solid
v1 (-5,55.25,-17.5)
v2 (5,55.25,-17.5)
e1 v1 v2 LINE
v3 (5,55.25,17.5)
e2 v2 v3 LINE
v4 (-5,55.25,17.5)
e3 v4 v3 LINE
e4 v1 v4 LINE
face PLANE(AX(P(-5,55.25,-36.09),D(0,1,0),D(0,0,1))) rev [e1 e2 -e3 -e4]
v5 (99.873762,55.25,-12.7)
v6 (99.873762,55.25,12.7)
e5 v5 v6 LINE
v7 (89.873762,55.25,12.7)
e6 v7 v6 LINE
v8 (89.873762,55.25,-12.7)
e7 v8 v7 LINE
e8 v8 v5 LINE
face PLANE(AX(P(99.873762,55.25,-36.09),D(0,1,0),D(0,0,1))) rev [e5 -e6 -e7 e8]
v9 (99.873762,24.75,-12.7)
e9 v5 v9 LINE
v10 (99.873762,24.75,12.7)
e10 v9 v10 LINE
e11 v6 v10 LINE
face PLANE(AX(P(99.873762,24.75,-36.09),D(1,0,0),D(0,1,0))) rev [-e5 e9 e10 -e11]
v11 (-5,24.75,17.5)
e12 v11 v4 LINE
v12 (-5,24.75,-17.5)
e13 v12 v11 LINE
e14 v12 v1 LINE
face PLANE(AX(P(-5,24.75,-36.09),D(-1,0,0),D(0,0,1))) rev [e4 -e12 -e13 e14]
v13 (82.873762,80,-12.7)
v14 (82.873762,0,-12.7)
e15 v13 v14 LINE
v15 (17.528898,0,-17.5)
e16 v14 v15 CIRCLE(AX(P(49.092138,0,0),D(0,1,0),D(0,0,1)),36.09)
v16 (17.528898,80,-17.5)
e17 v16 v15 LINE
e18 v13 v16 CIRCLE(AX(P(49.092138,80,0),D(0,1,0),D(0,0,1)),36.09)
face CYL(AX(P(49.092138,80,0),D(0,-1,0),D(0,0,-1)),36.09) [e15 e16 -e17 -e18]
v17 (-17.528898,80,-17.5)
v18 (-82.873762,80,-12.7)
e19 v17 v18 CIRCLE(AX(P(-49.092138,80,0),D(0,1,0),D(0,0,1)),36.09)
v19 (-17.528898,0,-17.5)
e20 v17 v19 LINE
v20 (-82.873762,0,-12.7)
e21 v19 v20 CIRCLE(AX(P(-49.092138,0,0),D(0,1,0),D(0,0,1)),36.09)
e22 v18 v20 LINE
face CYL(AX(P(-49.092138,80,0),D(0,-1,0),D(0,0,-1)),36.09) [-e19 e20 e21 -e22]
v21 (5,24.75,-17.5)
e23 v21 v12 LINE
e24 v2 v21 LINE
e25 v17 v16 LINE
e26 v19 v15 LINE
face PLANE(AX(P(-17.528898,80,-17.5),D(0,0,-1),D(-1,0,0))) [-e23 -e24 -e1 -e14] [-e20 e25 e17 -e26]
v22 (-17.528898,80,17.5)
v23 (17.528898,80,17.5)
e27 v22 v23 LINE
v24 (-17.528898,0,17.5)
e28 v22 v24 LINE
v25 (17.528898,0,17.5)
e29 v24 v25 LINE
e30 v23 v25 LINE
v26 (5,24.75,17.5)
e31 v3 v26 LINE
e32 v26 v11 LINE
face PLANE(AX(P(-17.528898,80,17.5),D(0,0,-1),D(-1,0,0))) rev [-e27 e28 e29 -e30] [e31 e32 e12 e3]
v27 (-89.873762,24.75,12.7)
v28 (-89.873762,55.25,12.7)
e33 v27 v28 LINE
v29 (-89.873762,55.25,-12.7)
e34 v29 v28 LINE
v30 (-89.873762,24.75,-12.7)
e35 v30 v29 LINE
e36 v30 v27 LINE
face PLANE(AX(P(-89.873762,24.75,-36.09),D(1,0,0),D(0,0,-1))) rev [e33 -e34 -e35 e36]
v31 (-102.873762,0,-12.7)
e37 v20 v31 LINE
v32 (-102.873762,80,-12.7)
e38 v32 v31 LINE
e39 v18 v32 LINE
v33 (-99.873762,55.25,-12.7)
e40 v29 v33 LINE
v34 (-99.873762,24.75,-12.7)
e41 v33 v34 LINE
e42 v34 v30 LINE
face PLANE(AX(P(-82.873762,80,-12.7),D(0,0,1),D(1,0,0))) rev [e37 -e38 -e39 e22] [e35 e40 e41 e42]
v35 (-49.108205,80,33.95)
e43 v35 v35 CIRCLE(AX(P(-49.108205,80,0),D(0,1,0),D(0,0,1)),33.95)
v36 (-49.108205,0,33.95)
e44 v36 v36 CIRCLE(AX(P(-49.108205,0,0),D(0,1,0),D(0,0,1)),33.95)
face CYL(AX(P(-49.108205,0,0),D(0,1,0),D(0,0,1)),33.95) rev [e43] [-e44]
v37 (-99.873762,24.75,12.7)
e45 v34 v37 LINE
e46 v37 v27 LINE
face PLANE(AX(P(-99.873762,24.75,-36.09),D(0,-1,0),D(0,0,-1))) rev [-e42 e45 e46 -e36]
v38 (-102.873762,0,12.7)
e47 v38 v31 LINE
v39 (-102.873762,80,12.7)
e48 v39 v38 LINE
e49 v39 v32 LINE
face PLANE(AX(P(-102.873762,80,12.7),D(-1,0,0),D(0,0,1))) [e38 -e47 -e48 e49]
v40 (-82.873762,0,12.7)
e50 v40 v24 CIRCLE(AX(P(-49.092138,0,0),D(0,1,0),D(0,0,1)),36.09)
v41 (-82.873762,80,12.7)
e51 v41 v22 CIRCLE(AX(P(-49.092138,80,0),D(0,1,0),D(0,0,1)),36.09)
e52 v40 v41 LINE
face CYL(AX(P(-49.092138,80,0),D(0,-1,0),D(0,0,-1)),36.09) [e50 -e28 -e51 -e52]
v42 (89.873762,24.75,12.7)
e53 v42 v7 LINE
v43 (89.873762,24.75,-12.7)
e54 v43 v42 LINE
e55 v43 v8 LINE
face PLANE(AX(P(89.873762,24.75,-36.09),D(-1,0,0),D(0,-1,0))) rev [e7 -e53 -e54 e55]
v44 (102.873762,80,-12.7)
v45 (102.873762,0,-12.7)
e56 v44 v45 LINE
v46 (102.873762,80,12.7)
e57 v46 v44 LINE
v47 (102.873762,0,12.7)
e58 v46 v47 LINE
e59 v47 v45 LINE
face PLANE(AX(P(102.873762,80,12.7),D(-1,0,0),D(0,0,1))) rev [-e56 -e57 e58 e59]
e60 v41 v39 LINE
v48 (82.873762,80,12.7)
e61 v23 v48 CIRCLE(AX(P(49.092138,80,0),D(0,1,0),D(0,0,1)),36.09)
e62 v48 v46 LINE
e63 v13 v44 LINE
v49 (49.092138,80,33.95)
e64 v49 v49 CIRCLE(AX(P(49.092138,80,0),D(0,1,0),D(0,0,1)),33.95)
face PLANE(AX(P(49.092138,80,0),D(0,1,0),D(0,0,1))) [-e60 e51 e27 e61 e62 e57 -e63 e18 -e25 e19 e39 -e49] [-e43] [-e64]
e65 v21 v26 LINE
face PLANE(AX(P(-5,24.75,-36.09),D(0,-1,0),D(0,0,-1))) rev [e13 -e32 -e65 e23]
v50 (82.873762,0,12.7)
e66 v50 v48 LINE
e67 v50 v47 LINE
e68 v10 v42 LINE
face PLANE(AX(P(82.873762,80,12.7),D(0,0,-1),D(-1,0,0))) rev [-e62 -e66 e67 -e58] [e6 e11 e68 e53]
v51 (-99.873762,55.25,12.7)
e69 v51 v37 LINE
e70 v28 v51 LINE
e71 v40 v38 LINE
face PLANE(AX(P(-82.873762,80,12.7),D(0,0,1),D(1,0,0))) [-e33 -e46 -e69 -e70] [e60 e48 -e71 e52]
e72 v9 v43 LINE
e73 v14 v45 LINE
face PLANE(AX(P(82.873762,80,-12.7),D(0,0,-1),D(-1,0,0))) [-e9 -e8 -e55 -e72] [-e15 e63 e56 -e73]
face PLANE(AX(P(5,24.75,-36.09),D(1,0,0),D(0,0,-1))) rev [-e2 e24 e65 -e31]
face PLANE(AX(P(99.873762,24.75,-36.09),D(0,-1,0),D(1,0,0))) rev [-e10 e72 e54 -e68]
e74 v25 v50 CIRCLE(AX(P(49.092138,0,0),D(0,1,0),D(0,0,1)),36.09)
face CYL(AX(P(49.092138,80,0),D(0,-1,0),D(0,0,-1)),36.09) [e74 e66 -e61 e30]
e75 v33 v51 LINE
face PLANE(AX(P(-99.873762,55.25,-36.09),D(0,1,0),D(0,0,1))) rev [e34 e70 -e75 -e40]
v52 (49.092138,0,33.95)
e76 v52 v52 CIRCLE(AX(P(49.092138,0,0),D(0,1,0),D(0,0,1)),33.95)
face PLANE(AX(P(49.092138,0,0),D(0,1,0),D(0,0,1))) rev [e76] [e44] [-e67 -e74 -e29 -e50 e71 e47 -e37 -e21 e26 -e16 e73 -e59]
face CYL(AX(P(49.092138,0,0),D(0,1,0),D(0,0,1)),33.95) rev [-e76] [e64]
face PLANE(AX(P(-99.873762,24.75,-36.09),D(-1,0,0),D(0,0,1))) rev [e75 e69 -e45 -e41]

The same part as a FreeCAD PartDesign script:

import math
import FreeCAD as App
import Part
import Sketcher
Q = App.Units.Quantity

doc = App.newDocument("Part")
body = doc.addObject("PartDesign::Body", "Body")

# Sketch on XZ plane
sketch1 = body.newObject("Sketcher::SketchObject", "Sketch")
sketch1.AttachmentSupport = (doc.getObject("XZ_Plane"), [""])
sketch1.MapMode = "FlatFace"
sketch1.addGeometry(Part.LineSegment(App.Vector(-82.873762, -12.7, 0), App.Vector(-102.873762, -12.7, 0)), False)
sketch1.addGeometry(Part.LineSegment(App.Vector(-102.873762, -12.7, 0), App.Vector(-102.873762, 12.7, 0)), False)
sketch1.addGeometry(Part.LineSegment(App.Vector(-102.873762, 12.7, 0), App.Vector(-82.873762, 12.7, 0)), False)
sketch1.addGeometry(Part.ArcOfCircle(Part.Circle(App.Vector(-49.092138, 0, 0), App.Vector(0, 0, 1), 36.09), math.radians(29.005846), math.radians(159.396549)), False)
sketch1.addGeometry(Part.LineSegment(App.Vector(-17.528898, 17.5, 0), App.Vector(17.528898, 17.5, 0)), False)
sketch1.addGeometry(Part.ArcOfCircle(Part.Circle(App.Vector(49.092138, 0, 0), App.Vector(0, 0, 1), 36.09), math.radians(20.603451), math.radians(150.994154)), False)
sketch1.addGeometry(Part.LineSegment(App.Vector(82.873762, 12.7, 0), App.Vector(102.873762, 12.7, 0)), False)
sketch1.addGeometry(Part.LineSegment(App.Vector(102.873762, 12.7, 0), App.Vector(102.873762, -12.7, 0)), False)
sketch1.addGeometry(Part.LineSegment(App.Vector(102.873762, -12.7, 0), App.Vector(82.873762, -12.7, 0)), False)
sketch1.addGeometry(Part.ArcOfCircle(Part.Circle(App.Vector(49.092138, 0, 0), App.Vector(0, 0, 1), 36.09), math.radians(-150.994154), math.radians(-20.603451)), False)
sketch1.addGeometry(Part.LineSegment(App.Vector(17.528898, -17.5, 0), App.Vector(-17.528898, -17.5, 0)), False)
sketch1.addGeometry(Part.ArcOfCircle(Part.Circle(App.Vector(-49.092138, 0, 0), App.Vector(0, 0, 1), 36.09), math.radians(-159.396549), math.radians(-29.005846)), False)
sketch1.addConstraint(Sketcher.Constraint("Coincident", 0, 2, 1, 1))
sketch1.addConstraint(Sketcher.Constraint("Coincident", 1, 2, 2, 1))
sketch1.addConstraint(Sketcher.Constraint("Coincident", 2, 2, 3, 2))
sketch1.addConstraint(Sketcher.Constraint("Coincident", 3, 1, 4, 1))
sketch1.addConstraint(Sketcher.Constraint("Coincident", 4, 2, 5, 2))
sketch1.addConstraint(Sketcher.Constraint("Coincident", 5, 1, 6, 1))
sketch1.addConstraint(Sketcher.Constraint("Coincident", 6, 2, 7, 1))
sketch1.addConstraint(Sketcher.Constraint("Coincident", 7, 2, 8, 1))
sketch1.addConstraint(Sketcher.Constraint("Coincident", 8, 2, 9, 2))
sketch1.addConstraint(Sketcher.Constraint("Coincident", 9, 1, 10, 1))
sketch1.addConstraint(Sketcher.Constraint("Coincident", 10, 2, 11, 2))
sketch1.addConstraint(Sketcher.Constraint("Coincident", 11, 1, 0, 1))
sketch1.addConstraint(Sketcher.Constraint("Horizontal", 0))
sketch1.addConstraint(Sketcher.Constraint("Vertical", 1))
sketch1.addConstraint(Sketcher.Constraint("Horizontal", 2))
sketch1.addConstraint(Sketcher.Constraint("Horizontal", 4))
sketch1.addConstraint(Sketcher.Constraint("Horizontal", 6))
sketch1.addConstraint(Sketcher.Constraint("Vertical", 7))
sketch1.addConstraint(Sketcher.Constraint("Horizontal", 8))
sketch1.addConstraint(Sketcher.Constraint("Horizontal", 10))
sketch1.addConstraint(Sketcher.Constraint("Coincident", 9, 3, 5, 3))
sketch1.addConstraint(Sketcher.Constraint("Coincident", 11, 3, 3, 3))
sketch1.addConstraint(Sketcher.Constraint("Equal", 3, 5))
sketch1.addConstraint(Sketcher.Constraint("Equal", 5, 9))
sketch1.addConstraint(Sketcher.Constraint("Equal", 9, 11))
sketch1.addConstraint(Sketcher.Constraint("Symmetric", 3, 3, 5, 3, -1, 1))
sketch1.addConstraint(Sketcher.Constraint("Symmetric", 0, 2, 6, 2, -1, 1))
sketch1.addConstraint(Sketcher.Constraint("Symmetric", 2, 2, 5, 1, -2))
sketch1.addConstraint(Sketcher.Constraint("Horizontal", 0, 2, 7, 2))
sketch1.addConstraint(Sketcher.Constraint("Vertical", 4, 2, 9, 1))
sketch1.addConstraint(Sketcher.Constraint("DistanceX", 0, 2, 0, 1, Q("20 mm")))
sketch1.addConstraint(Sketcher.Constraint("Radius", 3, Q("36.09 mm")))
sketch1.addConstraint(Sketcher.Constraint("DistanceY", 1, 1, 1, 2, Q("25.4 mm")))
sketch1.addConstraint(Sketcher.Constraint("DistanceY", 9, 1, 4, 2, Q("35 mm")))
sketch1.addConstraint(Sketcher.Constraint("DistanceX", 3, 1, -1, 1, Q("17.528898 mm")))
pad1 = body.newObject("PartDesign::Pad", "Pad")
pad1.Profile = sketch1
pad1.Length = 80
pad1.Reversed = True

# Sketch on XZ plane
sketch2 = body.newObject("Sketcher::SketchObject", "Sketch001")
sketch2.AttachmentSupport = (doc.getObject("XZ_Plane"), [""])
sketch2.MapMode = "FlatFace"
sketch2.AttachmentOffset = App.Placement(App.Vector(0, 0, -80), App.Rotation())
sketch2.addGeometry(Part.Circle(App.Vector(-49.108205, 0, 0), App.Vector(0, 0, 1), 33.95), False)
sketch2.addGeometry(Part.Circle(App.Vector(49.092138, 0, 0), App.Vector(0, 0, 1), 33.95), False)
sketch2.addConstraint(Sketcher.Constraint("Equal", 0, 1))
sketch2.addConstraint(Sketcher.Constraint("PointOnObject", 0, 3, -1))
sketch2.addConstraint(Sketcher.Constraint("PointOnObject", 1, 3, -1))
sketch2.addConstraint(Sketcher.Constraint("Diameter", 0, Q("67.9 mm")))
sketch2.addConstraint(Sketcher.Constraint("DistanceX", -1, 1, 1, 3, Q("49.092138 mm")))
sketch2.addConstraint(Sketcher.Constraint("DistanceX", 0, 3, -1, 1, Q("49.108205 mm")))
pocket1 = body.newObject("PartDesign::Pocket", "Pocket")
pocket1.Profile = sketch2
pocket1.Length = 80
pocket1.Reversed = True

# Sketch on XY plane
sketch3 = body.newObject("Sketcher::SketchObject", "Sketch002")
sketch3.AttachmentSupport = (doc.getObject("XY_Plane"), [""])
sketch3.MapMode = "FlatFace"
sketch3.AttachmentOffset = App.Placement(App.Vector(0, 0, 12.7), App.Rotation())
sketch3.addGeometry(Part.LineSegment(App.Vector(-5, 55.25, 0), App.Vector(-5, 24.75, 0)), False)
sketch3.addGeometry(Part.LineSegment(App.Vector(-5, 24.75, 0), App.Vector(5, 24.75, 0)), False)
sketch3.addGeometry(Part.LineSegment(App.Vector(5, 24.75, 0), App.Vector(5, 55.25, 0)), False)
sketch3.addGeometry(Part.LineSegment(App.Vector(5, 55.25, 0), App.Vector(-5, 55.25, 0)), False)
sketch3.addGeometry(Part.LineSegment(App.Vector(-99.873762, 55.25, 0), App.Vector(-99.873762, 24.75, 0)), False)
sketch3.addGeometry(Part.LineSegment(App.Vector(-99.873762, 24.75, 0), App.Vector(-89.873762, 24.75, 0)), False)
sketch3.addGeometry(Part.LineSegment(App.Vector(-89.873762, 24.75, 0), App.Vector(-89.873762, 55.25, 0)), False)
sketch3.addGeometry(Part.LineSegment(App.Vector(-89.873762, 55.25, 0), App.Vector(-99.873762, 55.25, 0)), False)
sketch3.addGeometry(Part.LineSegment(App.Vector(89.873762, 55.25, 0), App.Vector(89.873762, 24.75, 0)), False)
sketch3.addGeometry(Part.LineSegment(App.Vector(89.873762, 24.75, 0), App.Vector(99.873762, 24.75, 0)), False)
sketch3.addGeometry(Part.LineSegment(App.Vector(99.873762, 24.75, 0), App.Vector(99.873762, 55.25, 0)), False)
sketch3.addGeometry(Part.LineSegment(App.Vector(99.873762, 55.25, 0), App.Vector(89.873762, 55.25, 0)), False)
sketch3.addConstraint(Sketcher.Constraint("Coincident", 0, 2, 1, 1))
sketch3.addConstraint(Sketcher.Constraint("Coincident", 1, 2, 2, 1))
sketch3.addConstraint(Sketcher.Constraint("Coincident", 2, 2, 3, 1))
sketch3.addConstraint(Sketcher.Constraint("Coincident", 3, 2, 0, 1))
sketch3.addConstraint(Sketcher.Constraint("Coincident", 4, 2, 5, 1))
sketch3.addConstraint(Sketcher.Constraint("Coincident", 5, 2, 6, 1))
sketch3.addConstraint(Sketcher.Constraint("Coincident", 6, 2, 7, 1))
sketch3.addConstraint(Sketcher.Constraint("Coincident", 7, 2, 4, 1))
sketch3.addConstraint(Sketcher.Constraint("Coincident", 8, 2, 9, 1))
sketch3.addConstraint(Sketcher.Constraint("Coincident", 9, 2, 10, 1))
sketch3.addConstraint(Sketcher.Constraint("Coincident", 10, 2, 11, 1))
sketch3.addConstraint(Sketcher.Constraint("Coincident", 11, 2, 8, 1))
sketch3.addConstraint(Sketcher.Constraint("Vertical", 0))
sketch3.addConstraint(Sketcher.Constraint("Horizontal", 1))
sketch3.addConstraint(Sketcher.Constraint("Vertical", 2))
sketch3.addConstraint(Sketcher.Constraint("Horizontal", 3))
sketch3.addConstraint(Sketcher.Constraint("Vertical", 4))
sketch3.addConstraint(Sketcher.Constraint("Horizontal", 5))
sketch3.addConstraint(Sketcher.Constraint("Vertical", 6))
sketch3.addConstraint(Sketcher.Constraint("Horizontal", 7))
sketch3.addConstraint(Sketcher.Constraint("Vertical", 8))
sketch3.addConstraint(Sketcher.Constraint("Horizontal", 9))
sketch3.addConstraint(Sketcher.Constraint("Vertical", 10))
sketch3.addConstraint(Sketcher.Constraint("Horizontal", 11))
sketch3.addConstraint(Sketcher.Constraint("Symmetric", 5, 2, 8, 2, -2))
sketch3.addConstraint(Sketcher.Constraint("Symmetric", 7, 2, 10, 2, -2))
sketch3.addConstraint(Sketcher.Constraint("Horizontal", 1, 2, 4, 2))
sketch3.addConstraint(Sketcher.Constraint("Horizontal", 3, 2, 6, 2))
sketch3.addConstraint(Sketcher.Constraint("Equal", 3, 5))
sketch3.addConstraint(Sketcher.Constraint("DistanceX", 1, 1, 1, 2, Q("10 mm")))
sketch3.addConstraint(Sketcher.Constraint("DistanceY", 0, 2, 0, 1, Q("30.5 mm")))
sketch3.addConstraint(Sketcher.Constraint("DistanceX", 0, 2, -1, 1, Q("5 mm")))
sketch3.addConstraint(Sketcher.Constraint("DistanceY", -1, 1, 0, 2, Q("24.75 mm")))
sketch3.addConstraint(Sketcher.Constraint("DistanceX", 4, 2, -1, 1, Q("99.873762 mm")))
pocket2 = body.newObject("PartDesign::Pocket", "Pocket001")
pocket2.Profile = sketch3
pocket2.Type = "ThroughAll"
pocket2.Midplane = True

doc.recompute()
